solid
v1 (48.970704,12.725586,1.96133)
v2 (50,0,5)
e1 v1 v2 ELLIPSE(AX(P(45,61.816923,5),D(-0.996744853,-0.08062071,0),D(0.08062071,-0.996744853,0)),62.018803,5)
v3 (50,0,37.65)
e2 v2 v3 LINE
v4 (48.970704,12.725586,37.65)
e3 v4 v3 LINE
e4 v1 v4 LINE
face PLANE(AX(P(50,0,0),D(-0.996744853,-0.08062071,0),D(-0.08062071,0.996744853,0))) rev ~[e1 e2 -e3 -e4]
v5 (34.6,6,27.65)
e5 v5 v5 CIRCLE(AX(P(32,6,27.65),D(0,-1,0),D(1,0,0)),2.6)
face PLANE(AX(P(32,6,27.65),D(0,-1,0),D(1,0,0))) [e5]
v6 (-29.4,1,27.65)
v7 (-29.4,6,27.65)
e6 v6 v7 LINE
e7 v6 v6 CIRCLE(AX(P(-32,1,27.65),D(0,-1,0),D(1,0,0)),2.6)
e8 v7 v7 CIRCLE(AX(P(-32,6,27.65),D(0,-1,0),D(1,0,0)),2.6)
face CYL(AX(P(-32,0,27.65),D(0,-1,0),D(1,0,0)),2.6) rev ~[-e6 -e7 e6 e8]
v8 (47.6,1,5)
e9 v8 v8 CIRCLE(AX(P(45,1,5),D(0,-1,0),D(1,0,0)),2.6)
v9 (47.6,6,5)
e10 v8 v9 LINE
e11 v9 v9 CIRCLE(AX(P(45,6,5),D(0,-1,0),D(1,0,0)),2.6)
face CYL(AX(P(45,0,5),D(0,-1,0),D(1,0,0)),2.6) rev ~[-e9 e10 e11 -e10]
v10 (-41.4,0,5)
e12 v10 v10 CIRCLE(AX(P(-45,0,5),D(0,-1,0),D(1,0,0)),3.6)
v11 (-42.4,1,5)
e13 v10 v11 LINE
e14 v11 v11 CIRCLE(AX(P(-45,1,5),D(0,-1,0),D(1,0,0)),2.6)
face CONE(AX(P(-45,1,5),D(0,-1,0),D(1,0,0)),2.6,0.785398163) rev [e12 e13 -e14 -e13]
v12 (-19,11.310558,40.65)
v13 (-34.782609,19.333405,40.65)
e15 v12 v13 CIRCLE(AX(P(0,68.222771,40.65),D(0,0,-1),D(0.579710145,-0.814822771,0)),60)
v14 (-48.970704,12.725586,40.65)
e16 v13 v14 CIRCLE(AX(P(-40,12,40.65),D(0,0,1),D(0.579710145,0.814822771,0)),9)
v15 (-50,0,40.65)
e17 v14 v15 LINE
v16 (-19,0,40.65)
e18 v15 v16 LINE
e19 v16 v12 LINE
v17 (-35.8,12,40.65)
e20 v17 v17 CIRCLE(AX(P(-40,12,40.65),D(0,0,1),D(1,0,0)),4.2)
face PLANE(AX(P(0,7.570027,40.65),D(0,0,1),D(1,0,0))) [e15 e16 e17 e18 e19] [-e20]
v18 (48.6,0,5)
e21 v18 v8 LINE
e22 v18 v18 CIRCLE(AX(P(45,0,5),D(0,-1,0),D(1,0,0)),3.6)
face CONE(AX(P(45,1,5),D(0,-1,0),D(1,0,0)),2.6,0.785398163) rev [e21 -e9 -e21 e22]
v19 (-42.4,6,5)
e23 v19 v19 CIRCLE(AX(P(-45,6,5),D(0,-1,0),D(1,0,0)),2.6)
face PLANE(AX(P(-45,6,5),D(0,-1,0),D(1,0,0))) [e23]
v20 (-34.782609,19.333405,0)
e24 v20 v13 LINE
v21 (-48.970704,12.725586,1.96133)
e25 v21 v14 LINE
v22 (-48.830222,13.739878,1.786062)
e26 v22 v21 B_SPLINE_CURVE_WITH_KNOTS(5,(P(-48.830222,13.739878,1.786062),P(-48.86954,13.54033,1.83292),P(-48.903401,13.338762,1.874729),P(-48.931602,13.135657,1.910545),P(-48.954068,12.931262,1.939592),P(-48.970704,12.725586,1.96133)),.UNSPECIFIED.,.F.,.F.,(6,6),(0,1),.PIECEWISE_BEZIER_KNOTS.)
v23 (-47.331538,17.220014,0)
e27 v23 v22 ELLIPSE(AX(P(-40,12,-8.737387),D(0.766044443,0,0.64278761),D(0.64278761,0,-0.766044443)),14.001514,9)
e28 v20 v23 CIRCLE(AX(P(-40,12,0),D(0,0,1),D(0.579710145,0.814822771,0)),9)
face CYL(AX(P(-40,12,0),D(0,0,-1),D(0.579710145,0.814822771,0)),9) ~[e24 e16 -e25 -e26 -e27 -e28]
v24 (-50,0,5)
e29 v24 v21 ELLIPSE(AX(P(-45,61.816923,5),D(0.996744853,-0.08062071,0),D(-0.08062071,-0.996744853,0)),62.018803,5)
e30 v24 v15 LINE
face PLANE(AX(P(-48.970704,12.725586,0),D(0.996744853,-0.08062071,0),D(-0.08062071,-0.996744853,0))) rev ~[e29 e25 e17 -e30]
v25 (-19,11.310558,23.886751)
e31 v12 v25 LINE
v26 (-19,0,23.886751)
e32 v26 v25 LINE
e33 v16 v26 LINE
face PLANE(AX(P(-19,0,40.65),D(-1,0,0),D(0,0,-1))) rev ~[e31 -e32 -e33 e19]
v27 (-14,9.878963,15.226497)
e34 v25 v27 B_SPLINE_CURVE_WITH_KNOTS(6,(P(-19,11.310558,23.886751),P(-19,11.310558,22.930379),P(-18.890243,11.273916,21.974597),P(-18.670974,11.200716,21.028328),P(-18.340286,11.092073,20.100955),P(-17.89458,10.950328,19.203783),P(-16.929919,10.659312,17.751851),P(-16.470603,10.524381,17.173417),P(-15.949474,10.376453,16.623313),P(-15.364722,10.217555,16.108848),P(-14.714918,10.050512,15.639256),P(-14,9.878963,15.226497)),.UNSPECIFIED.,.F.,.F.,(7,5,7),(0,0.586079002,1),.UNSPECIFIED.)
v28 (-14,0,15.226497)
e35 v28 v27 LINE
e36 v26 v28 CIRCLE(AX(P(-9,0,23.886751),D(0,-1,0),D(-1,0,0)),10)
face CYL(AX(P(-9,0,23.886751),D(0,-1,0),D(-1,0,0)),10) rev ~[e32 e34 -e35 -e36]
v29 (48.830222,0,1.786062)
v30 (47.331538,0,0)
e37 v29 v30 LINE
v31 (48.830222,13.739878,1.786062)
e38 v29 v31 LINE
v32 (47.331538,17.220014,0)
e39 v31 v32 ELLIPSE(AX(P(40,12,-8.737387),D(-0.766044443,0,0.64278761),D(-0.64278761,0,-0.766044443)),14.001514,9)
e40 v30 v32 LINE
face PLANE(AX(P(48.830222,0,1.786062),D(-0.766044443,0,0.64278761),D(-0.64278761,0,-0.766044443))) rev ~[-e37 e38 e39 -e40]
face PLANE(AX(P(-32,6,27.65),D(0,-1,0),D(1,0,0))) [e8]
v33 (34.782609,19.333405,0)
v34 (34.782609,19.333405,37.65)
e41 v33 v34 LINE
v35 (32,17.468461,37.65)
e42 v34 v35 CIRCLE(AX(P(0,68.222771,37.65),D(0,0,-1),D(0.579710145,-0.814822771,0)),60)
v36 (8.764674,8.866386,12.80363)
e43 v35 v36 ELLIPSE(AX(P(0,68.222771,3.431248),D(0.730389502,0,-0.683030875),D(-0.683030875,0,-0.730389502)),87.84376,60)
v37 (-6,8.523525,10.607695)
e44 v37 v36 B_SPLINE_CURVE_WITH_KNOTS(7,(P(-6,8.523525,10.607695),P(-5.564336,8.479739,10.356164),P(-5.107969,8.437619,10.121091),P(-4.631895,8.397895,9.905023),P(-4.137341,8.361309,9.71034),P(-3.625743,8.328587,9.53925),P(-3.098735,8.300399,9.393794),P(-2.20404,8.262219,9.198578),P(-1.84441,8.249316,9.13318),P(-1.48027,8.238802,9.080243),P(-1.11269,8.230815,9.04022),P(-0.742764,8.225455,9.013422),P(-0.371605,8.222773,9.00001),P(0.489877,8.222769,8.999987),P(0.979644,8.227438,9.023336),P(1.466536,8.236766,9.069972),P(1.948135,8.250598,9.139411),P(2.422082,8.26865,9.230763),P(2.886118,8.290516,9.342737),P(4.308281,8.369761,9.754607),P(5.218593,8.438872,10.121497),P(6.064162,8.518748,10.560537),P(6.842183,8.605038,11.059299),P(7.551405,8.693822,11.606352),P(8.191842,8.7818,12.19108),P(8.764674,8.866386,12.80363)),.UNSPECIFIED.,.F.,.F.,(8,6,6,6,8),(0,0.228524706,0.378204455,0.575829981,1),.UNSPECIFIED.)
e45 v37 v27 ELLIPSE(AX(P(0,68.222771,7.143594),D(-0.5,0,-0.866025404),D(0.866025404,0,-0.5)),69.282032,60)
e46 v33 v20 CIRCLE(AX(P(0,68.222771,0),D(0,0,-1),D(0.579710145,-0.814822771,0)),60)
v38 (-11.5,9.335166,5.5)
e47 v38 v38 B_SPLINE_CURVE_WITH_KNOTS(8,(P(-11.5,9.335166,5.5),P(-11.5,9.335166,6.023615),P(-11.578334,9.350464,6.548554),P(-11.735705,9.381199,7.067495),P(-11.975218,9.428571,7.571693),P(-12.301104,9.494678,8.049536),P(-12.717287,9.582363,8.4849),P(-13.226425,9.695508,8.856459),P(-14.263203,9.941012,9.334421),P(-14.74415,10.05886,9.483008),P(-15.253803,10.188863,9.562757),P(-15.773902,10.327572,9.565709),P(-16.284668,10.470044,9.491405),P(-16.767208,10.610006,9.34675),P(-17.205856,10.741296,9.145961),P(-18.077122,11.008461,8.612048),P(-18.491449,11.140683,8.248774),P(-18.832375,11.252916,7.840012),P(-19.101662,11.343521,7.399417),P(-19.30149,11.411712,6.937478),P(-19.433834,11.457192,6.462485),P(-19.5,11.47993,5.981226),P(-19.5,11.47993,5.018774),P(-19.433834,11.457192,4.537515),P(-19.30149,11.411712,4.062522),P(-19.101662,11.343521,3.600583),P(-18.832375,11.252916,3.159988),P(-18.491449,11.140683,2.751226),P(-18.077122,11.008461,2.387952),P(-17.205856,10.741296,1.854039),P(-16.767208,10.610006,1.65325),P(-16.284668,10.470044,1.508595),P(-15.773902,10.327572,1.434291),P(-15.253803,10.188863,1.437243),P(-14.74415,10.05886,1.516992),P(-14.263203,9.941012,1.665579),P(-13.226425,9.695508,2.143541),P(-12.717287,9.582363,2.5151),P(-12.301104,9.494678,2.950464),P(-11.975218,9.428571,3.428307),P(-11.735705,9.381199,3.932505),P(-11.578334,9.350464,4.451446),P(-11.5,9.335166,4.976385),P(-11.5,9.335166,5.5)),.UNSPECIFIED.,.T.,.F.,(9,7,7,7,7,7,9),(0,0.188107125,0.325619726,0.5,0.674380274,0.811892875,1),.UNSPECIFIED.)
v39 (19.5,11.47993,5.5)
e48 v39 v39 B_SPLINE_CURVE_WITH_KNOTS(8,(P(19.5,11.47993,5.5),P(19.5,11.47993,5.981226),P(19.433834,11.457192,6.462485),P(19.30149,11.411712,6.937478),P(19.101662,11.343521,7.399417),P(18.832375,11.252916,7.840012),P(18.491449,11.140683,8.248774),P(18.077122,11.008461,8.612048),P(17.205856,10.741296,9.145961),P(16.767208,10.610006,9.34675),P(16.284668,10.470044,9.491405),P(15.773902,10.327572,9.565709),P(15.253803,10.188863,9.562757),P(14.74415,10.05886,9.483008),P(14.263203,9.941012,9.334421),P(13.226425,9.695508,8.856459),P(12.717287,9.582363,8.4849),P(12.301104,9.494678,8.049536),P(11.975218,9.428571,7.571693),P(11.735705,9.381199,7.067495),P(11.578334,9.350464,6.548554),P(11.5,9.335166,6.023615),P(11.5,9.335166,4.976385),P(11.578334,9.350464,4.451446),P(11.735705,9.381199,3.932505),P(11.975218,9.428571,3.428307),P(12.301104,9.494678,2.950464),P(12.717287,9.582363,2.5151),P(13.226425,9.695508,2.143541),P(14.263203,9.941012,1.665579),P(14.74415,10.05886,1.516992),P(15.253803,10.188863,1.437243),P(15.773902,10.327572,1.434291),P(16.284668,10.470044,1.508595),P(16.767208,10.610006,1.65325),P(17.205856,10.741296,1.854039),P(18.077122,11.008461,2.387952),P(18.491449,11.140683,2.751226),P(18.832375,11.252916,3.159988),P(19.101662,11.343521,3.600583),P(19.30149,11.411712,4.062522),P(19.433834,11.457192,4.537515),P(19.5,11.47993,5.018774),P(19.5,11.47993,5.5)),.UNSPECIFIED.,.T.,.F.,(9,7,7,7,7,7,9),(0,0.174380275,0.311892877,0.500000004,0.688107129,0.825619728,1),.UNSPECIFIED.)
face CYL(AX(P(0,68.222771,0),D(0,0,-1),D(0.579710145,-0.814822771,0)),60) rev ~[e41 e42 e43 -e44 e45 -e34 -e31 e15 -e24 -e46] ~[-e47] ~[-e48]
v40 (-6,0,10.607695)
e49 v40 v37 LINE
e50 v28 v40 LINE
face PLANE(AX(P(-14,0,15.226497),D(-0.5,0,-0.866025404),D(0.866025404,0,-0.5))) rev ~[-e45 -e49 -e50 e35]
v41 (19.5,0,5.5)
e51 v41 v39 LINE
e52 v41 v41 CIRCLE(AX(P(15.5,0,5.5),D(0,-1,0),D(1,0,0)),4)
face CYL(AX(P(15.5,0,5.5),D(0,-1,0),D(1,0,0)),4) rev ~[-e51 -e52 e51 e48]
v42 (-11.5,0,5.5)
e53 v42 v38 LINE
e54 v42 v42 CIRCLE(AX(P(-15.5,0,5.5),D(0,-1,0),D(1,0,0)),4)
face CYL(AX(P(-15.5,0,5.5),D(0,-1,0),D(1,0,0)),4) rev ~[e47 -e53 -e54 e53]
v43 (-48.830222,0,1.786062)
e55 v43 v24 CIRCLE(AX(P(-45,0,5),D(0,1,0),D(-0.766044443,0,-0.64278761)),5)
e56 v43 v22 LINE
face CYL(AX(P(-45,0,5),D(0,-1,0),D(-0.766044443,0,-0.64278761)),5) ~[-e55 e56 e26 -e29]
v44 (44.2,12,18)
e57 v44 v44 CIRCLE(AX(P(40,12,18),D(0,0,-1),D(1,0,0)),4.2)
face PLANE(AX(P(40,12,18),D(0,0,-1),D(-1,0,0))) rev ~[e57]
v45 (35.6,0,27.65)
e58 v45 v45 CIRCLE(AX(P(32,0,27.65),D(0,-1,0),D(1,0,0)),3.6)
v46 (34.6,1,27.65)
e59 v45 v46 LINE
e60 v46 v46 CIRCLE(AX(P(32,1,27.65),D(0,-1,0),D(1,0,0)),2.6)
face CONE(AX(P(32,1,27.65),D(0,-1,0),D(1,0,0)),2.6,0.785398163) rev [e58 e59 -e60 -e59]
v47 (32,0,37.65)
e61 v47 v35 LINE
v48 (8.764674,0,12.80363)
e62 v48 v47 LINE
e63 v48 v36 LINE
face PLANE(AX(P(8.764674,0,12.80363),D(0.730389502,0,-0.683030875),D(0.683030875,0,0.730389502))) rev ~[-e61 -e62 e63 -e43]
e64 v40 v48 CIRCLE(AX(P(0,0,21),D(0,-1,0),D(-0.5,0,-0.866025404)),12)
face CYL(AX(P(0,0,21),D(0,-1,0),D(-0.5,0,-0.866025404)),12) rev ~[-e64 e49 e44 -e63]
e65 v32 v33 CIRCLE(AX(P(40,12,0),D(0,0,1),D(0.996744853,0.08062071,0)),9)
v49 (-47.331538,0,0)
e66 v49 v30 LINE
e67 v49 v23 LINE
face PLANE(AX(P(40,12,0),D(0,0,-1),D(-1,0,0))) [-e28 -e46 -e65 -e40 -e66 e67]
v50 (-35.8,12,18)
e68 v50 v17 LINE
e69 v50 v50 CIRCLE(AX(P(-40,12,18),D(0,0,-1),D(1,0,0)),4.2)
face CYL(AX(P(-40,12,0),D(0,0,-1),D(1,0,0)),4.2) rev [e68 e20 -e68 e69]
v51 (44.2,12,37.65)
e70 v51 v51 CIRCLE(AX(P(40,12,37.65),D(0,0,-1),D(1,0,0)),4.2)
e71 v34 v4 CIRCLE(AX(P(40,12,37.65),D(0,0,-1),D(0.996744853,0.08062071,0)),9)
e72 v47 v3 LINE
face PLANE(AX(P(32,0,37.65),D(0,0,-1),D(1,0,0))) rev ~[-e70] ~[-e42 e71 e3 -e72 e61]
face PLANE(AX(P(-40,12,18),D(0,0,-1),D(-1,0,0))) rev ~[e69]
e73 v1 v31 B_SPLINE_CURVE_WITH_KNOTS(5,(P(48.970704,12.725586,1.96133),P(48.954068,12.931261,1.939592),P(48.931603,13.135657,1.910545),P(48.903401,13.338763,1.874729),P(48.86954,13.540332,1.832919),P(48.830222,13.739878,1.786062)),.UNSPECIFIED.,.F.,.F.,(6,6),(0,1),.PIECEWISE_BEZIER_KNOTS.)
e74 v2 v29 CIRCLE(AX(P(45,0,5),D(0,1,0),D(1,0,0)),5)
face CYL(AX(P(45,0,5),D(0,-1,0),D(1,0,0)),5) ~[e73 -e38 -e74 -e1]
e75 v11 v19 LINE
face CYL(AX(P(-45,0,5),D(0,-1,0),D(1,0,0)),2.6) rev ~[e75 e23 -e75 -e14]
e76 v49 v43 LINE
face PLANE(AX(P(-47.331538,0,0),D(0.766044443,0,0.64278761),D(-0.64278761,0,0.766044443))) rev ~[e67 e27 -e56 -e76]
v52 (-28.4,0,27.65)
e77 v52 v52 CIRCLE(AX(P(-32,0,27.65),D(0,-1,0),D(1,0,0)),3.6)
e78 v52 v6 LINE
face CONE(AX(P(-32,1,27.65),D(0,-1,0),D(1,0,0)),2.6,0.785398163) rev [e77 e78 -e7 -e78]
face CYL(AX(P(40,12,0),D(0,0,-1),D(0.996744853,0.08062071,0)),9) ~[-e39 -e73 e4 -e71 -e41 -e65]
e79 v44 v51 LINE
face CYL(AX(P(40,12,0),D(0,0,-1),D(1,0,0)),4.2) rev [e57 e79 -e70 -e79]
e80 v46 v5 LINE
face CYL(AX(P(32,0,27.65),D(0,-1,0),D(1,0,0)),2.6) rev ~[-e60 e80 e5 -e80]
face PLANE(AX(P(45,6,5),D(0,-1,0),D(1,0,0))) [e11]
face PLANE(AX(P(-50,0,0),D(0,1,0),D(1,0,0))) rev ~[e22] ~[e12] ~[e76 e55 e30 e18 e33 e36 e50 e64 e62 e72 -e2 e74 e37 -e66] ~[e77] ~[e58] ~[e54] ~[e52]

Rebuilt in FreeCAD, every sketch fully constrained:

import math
import FreeCAD as App
import Part
import Sketcher
from FreeCAD import Vector
Q = App.Units.Quantity


def edges_at(feature, points):
    """Names of the edges that pass closest to the given points."""
    edges = feature.Shape.Edges
    near = lambda p: min(range(len(edges)), key=lambda i: edges[i].distToShape(Part.Vertex(*p))[0])
    return sorted({f"Edge{near(p) + 1}" for p in points})

doc = App.newDocument("Part")
body = doc.addObject("PartDesign::Body", "Body")

sketch1 = body.newObject("Sketcher::SketchObject", "Sketch")
sketch1.AttachmentSupport = (doc.getObject("XY_Plane"), [""])
sketch1.MapMode = "FlatFace"
sketch1.addGeometry([
    Part.LineSegment(Vector(-49, 12.7, 0), Vector(-50, 0, 0)),
    Part.LineSegment(Vector(-50, 0, 0), Vector(50, 0, 0)),
    Part.LineSegment(Vector(50, 0, 0), Vector(49, 12.7, 0)),
    Part.ArcOfCircle(Part.Circle(Vector(40, 12, 0), Vector(0, 0, 1), 9), math.radians(5), math.radians(125)),
    Part.ArcOfCircle(Part.Circle(Vector(0, 68.2, 0), Vector(0, 0, 1), 60), math.radians(-125), math.radians(-55)),
    Part.ArcOfCircle(Part.Circle(Vector(-40, 12, 0), Vector(0, 0, 1), 9), math.radians(55), math.radians(175)),
    Part.Circle(Vector(-40, 12, 0), Vector(0, 0, 1), 4.2),
    Part.Circle(Vector(40, 12, 0), Vector(0, 0, 1), 4.2),
], False)
sketch1.addConstraint([
    Sketcher.Constraint("Coincident", 0, 2, 1, 1),
    Sketcher.Constraint("Coincident", 1, 2, 2, 1),
    Sketcher.Constraint("Tangent", 2, 2, 3, 1),
    Sketcher.Constraint("Tangent", 3, 2, 4, 2),
    Sketcher.Constraint("Tangent", 4, 1, 5, 1),
    Sketcher.Constraint("Tangent", 5, 2, 0, 1),
    Sketcher.Constraint("Horizontal", 1),
    Sketcher.Constraint("Coincident", 6, 3, 5, 3),
    Sketcher.Constraint("Coincident", 7, 3, 3, 3),
    Sketcher.Constraint("Equal", 3, 5),
    Sketcher.Constraint("Equal", 6, 7),
    Sketcher.Constraint("Symmetric", 0, 2, 1, 2, -1, 1),
    Sketcher.Constraint("Symmetric", 3, 3, 5, 3, -2),
    Sketcher.Constraint("Radius", 3, 9.0),
    Sketcher.Constraint("Radius", 4, 60.0),
    Sketcher.Constraint("Diameter", 6, 8.4),
    Sketcher.Constraint("DistanceX", 1, 1, 1, 2, 100.0),
    Sketcher.Constraint("DistanceX", -1, 1, 3, 3, 40.0),
    Sketcher.Constraint("DistanceY", -1, 1, 3, 3, 12.0),
])
pad1 = body.newObject("PartDesign::Pad", "Pad")
pad1.Profile = sketch1
pad1.Length = 40.65

sketch2 = body.newObject("Sketcher::SketchObject", "Sketch001")
sketch2.AttachmentSupport = (doc.getObject("XY_Plane"), [""])
sketch2.MapMode = "FlatFace"
sketch2.addGeometry([
    Part.Circle(Vector(40, 12, 0), Vector(0, 0, 1), 4.2),
    Part.Circle(Vector(-40, 12, 0), Vector(0, 0, 1), 4.2),
], False)
sketch2.addConstraint([
    Sketcher.Constraint("Equal", 0, 1),
    Sketcher.Constraint("Symmetric", 0, 3, 1, 3, -2),
    Sketcher.Constraint("Diameter", 0, 8.4),
    Sketcher.Constraint("DistanceX", -1, 1, 0, 3, 40.0),
    Sketcher.Constraint("DistanceY", -1, 1, 0, 3, 12.0),
])
pad2 = body.newObject("PartDesign::Pad", "Pad001")
pad2.Profile = sketch2
pad2.Length = 18

sketch3 = body.newObject("Sketcher::SketchObject", "Sketch002")
sketch3.AttachmentSupport = (doc.getObject("XZ_Plane"), [""])
sketch3.MapMode = "FlatFace"
sketch3.addGeometry([
    Part.Circle(Vector(-15.5, 5.5, 0), Vector(0, 0, 1), 4),
    Part.Circle(Vector(15.5, 5.5, 0), Vector(0, 0, 1), 4),
    Part.LineSegment(Vector(8.8, 12.8, 0), Vector(32, 37.6, 0)),
    Part.LineSegment(Vector(32, 37.6, 0), Vector(50, 37.6, 0)),
    Part.LineSegment(Vector(50, 37.6, 0), Vector(50, 40.6, 0)),
    Part.LineSegment(Vector(50, 40.6, 0), Vector(-19, 40.6, 0)),
    Part.LineSegment(Vector(-19, 40.6, 0), Vector(-19, 23.9, 0)),
    Part.ArcOfCircle(Part.Circle(Vector(-9, 23.9, 0), Vector(0, 0, 1), 10), math.radians(180), math.radians(240)),
    Part.LineSegment(Vector(-14, 15.2, 0), Vector(-6, 10.6, 0)),
    Part.ArcOfCircle(Part.Circle(Vector(0, 21, 0), Vector(0, 0, 1), 12), math.radians(-120), math.radians(-43)),
], False)
sketch3.addConstraint([
    Sketcher.Constraint("Coincident", 2, 2, 3, 1),
    Sketcher.Constraint("Coincident", 3, 2, 4, 1),
    Sketcher.Constraint("Coincident", 4, 2, 5, 1),
    Sketcher.Constraint("Coincident", 5, 2, 6, 1),
    Sketcher.Constraint("Tangent", 6, 2, 7, 1),
    Sketcher.Constraint("Tangent", 7, 2, 8, 1),
    Sketcher.Constraint("Tangent", 8, 2, 9, 1),
    Sketcher.Constraint("Tangent", 9, 2, 2, 1),
    Sketcher.Constraint("Horizontal", 3),
    Sketcher.Constraint("Vertical", 4),
    Sketcher.Constraint("Horizontal", 5),
    Sketcher.Constraint("Vertical", 6),
    Sketcher.Constraint("Equal", 0, 1),
    Sketcher.Constraint("Symmetric", 0, 3, 1, 3, -2),
    Sketcher.Constraint("PointOnObject", 9, 3, -2),
    Sketcher.Constraint("Diameter", 0, 8.0),
    Sketcher.Constraint("Radius", 7, 10.0),
    Sketcher.Constraint("Radius", 9, 12.0),
    Sketcher.Constraint("DistanceX", 3, 1, 3, 2, 18.0),
    Sketcher.Constraint("DistanceX", 5, 2, 5, 1, 69.0),
    Sketcher.Constraint("DistanceY", 4, 1, 4, 2, 3.0),
    Sketcher.Constraint("Angle", 8, Q("-30 deg")),
    Sketcher.Constraint("DistanceX", 7, 3, -1, 1, 9.0),
    Sketcher.Constraint("DistanceY", -1, 1, 9, 3, 21.0),
    Sketcher.Constraint("DistanceX", 0, 3, 1, 3, 31.0),
    Sketcher.Constraint("DistanceY", -1, 1, 0, 3, 5.5),
    Sketcher.Constraint("DistanceY", -1, 1, 2, 2, 37.65),
])
pocket1 = body.newObject("PartDesign::Pocket", "Pocket")
pocket1.Profile = sketch3
pocket1.Type = "ThroughAll"

sketch4 = body.newObject("Sketcher::SketchObject", "Sketch003")
sketch4.AttachmentSupport = (doc.getObject("XZ_Plane"), [""])
sketch4.MapMode = "FlatFace"
sketch4.addGeometry([
    Part.Circle(Vector(-32, 27.6, 0), Vector(0, 0, 1), 2.6),
    Part.Circle(Vector(-45, 5, 0), Vector(0, 0, 1), 2.6),
    Part.Circle(Vector(32, 27.6, 0), Vector(0, 0, 1), 2.6),
    Part.Circle(Vector(45, 5, 0), Vector(0, 0, 1), 2.6),
], False)
sketch4.addConstraint([
    Sketcher.Constraint("Equal", 0, 1),
    Sketcher.Constraint("Equal", 1, 2),
    Sketcher.Constraint("Equal", 2, 3),
    Sketcher.Constraint("Symmetric", 0, 3, 2, 3, -2),
    Sketcher.Constraint("Symmetric", 1, 3, 3, 3, -2),
    Sketcher.Constraint("Diameter", 0, 5.2),
    Sketcher.Constraint("DistanceX", 0, 3, -1, 1, 32.0),
    Sketcher.Constraint("DistanceX", 1, 3, -1, 1, 45.0),
    Sketcher.Constraint("DistanceY", -1, 1, 1, 3, 5.0),
    Sketcher.Constraint("DistanceY", -1, 1, 0, 3, 27.65),
])
pocket2 = body.newObject("PartDesign::Pocket", "Pocket001")
pocket2.Profile = sketch4
pocket2.Length = 6
doc.recompute()

chamfer = body.newObject("PartDesign::Chamfer", "Chamfer")
chamfer.Base = (pocket2, edges_at(pocket2, [
    (-34.6, 0, 27.65),
    (-47.6, 0, 5),
    (29.4, 0, 27.65),
    (42.4, 0, 5),
]))
chamfer.Size = 1

sketch5 = body.newObject("Sketcher::SketchObject", "Sketch004")
sketch5.AttachmentSupport = (doc.getObject("XZ_Plane"), [""])
sketch5.MapMode = "FlatFace"
sketch5.addGeometry([
    Part.LineSegment(Vector(-50, 5, 0), Vector(-50, 0, 0)),
    Part.LineSegment(Vector(-50, 0, 0), Vector(-47.3, 0, 0)),
    Part.LineSegment(Vector(-47.3, 0, 0), Vector(-48.8, 1.8, 0)),
    Part.ArcOfCircle(Part.Circle(Vector(-45, 5, 0), Vector(0, 0, 1), 5), math.radians(180), math.radians(220)),
    Part.LineSegment(Vector(48.8, 1.8, 0), Vector(47.3, 0, 0)),
    Part.LineSegment(Vector(47.3, 0, 0), Vector(50, 0, 0)),
    Part.LineSegment(Vector(50, 0, 0), Vector(50, 5, 0)),
    Part.ArcOfCircle(Part.Circle(Vector(45, 5, 0), Vector(0, 0, 1), 5), math.radians(-40), math.radians(0)),
], False)
sketch5.addConstraint([
    Sketcher.Constraint("Coincident", 0, 2, 1, 1),
    Sketcher.Constraint("Coincident", 1, 2, 2, 1),
    Sketcher.Constraint("Tangent", 2, 2, 3, 2),
    Sketcher.Constraint("Tangent", 3, 1, 0, 1),
    Sketcher.Constraint("Coincident", 4, 2, 5, 1),
    Sketcher.Constraint("Coincident", 5, 2, 6, 1),
    Sketcher.Constraint("Tangent", 6, 2, 7, 2),
    Sketcher.Constraint("Tangent", 7, 1, 4, 1),
    Sketcher.Constraint("Vertical", 0),
    Sketcher.Constraint("Horizontal", 1),
    Sketcher.Constraint("Horizontal", 5),
    Sketcher.Constraint("Vertical", 6),
    Sketcher.Constraint("Equal", 3, 7),
    Sketcher.Constraint("Symmetric", 1, 2, 4, 2, -1, 1),
    Sketcher.Constraint("Symmetric", 3, 3, 7, 3, -2),
    Sketcher.Constraint("PointOnObject", 0, 2, -1),
    Sketcher.Constraint("Radius", 3, 5.0),
    Sketcher.Constraint("DistanceY", 0, 2, 0, 1, 5.0),
    Sketcher.Constraint("Angle", 2, Q("130 deg")),
    Sketcher.Constraint("DistanceX", 3, 3, -1, 1, 45.0),
])
pocket3 = body.newObject("PartDesign::Pocket", "Pocket002")
pocket3.Profile = sketch5
pocket3.Type = "ThroughAll"

doc.recompute()
